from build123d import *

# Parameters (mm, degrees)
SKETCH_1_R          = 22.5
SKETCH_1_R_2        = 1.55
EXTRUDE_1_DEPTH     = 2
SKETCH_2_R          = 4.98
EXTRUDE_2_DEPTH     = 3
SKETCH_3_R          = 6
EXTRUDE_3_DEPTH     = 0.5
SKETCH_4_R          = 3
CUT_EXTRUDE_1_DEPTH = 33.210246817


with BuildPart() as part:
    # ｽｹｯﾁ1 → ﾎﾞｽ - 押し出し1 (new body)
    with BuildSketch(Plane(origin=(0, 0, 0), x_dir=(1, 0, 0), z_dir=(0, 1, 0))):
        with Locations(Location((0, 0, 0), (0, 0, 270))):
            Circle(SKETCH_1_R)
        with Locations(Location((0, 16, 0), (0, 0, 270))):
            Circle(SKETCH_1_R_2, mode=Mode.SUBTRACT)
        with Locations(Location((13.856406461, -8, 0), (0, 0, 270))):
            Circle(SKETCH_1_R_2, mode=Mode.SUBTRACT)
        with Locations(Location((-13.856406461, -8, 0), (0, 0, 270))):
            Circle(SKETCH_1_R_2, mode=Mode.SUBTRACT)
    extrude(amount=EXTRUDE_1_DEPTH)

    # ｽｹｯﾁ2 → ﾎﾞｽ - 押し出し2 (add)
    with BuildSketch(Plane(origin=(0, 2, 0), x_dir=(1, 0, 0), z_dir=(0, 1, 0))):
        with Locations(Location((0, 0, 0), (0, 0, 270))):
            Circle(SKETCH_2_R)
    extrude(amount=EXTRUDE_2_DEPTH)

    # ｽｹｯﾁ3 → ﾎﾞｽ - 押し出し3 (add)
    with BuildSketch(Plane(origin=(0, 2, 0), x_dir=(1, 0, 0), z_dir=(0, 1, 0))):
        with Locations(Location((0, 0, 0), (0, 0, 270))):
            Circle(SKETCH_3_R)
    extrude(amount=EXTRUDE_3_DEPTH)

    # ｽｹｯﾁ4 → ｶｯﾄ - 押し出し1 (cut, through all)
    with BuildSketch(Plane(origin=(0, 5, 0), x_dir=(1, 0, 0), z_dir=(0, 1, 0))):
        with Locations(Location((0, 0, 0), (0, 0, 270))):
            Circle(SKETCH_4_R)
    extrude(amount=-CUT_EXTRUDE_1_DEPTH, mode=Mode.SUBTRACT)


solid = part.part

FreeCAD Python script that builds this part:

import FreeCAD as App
import Part
import Sketcher

V = App.Vector
Q = App.Units.Quantity

doc = App.newDocument("Part")
params = doc.addObject("Spreadsheet::Sheet", "Params")
for row, (alias, value) in enumerate([
    ("sketch1_diameter", "45 mm"),
    ("sketch1_diameter2", "3.1 mm"),
    ("pad1_length", "2 mm"),
    ("sketch2_diameter", "9.96 mm"),
    ("pad2_length", "3 mm"),
    ("sketch3_diameter", "12 mm"),
    ("pad3_length", "0.5 mm"),
    ("sketch4_diameter", "6 mm"),
], start=1):
    params.set(f"A{row}", alias)
    params.set(f"B{row}", "=" + value)
    params.setAlias(f"B{row}", alias)

body = doc.addObject("PartDesign::Body", "Body")

sketch1 = body.newObject("Sketcher::SketchObject", "Sketch")
sketch1.AttachmentSupport = (doc.getObject("XZ_Plane"), [""])
sketch1.MapMode = "FlatFace"
sketch1.addGeometry([
    Part.Circle(V(0, 0, 0), V(0, 0, 1), 22.5),
    Part.Circle(V(0, -16, 0), V(0, 0, 1), 1.6),
    Part.Circle(V(-13.9, 8, 0), V(0, 0, 1), 1.6),
    Part.Circle(V(13.9, 8, 0), V(0, 0, 1), 1.6),
], False)
sketch1.addConstraint([
    Sketcher.Constraint("Coincident", 0, 3, -1, 1),
    Sketcher.Constraint("Equal", 1, 2),
    Sketcher.Constraint("Equal", 2, 3),
    Sketcher.Constraint("Symmetric", 2, 3, 3, 3, -2),
    Sketcher.Constraint("PointOnObject", 1, 3, -2),
    Sketcher.Constraint("Diameter", 0, Q("45 mm")),
    Sketcher.Constraint("Diameter", 1, Q("3.1 mm")),
    Sketcher.Constraint("DistanceY", 1, 3, -1, 1, Q("16 mm")),
    Sketcher.Constraint("DistanceY", -1, 1, 2, 3, Q("8 mm")),
    Sketcher.Constraint("DistanceX", 2, 3, -1, 1, Q("13.856406 mm")),
])
sketch1.setExpression("Constraints[5]", "Params.sketch1_diameter")
sketch1.setExpression("Constraints[6]", "Params.sketch1_diameter2")
pad1 = body.newObject("PartDesign::Pad", "Pad")
pad1.Profile = sketch1
pad1.setExpression("Length", "Params.pad1_length")
pad1.Reversed = True

sketch2 = body.newObject("Sketcher::SketchObject", "Sketch001")
sketch2.AttachmentSupport = (doc.getObject("XZ_Plane"), [""])
sketch2.MapMode = "FlatFace"
sketch2.AttachmentOffset = App.Placement(V(0, 0, -2), App.Rotation())
sketch2.addGeometry(Part.Circle(V(0, 0, 0), V(0, 0, 1), 5), False)
sketch2.addConstraint([
    Sketcher.Constraint("Coincident", 0, 3, -1, 1),
    Sketcher.Constraint("Diameter", 0, Q("9.96 mm")),
])
sketch2.setExpression("Constraints[1]", "Params.sketch2_diameter")
pad2 = body.newObject("PartDesign::Pad", "Pad001")
pad2.Profile = sketch2
pad2.setExpression("Length", "Params.pad2_length")
pad2.Reversed = True

sketch3 = body.newObject("Sketcher::SketchObject", "Sketch002")
sketch3.AttachmentSupport = (doc.getObject("XZ_Plane"), [""])
sketch3.MapMode = "FlatFace"
sketch3.AttachmentOffset = App.Placement(V(0, 0, -2), App.Rotation())
sketch3.addGeometry(Part.Circle(V(0, 0, 0), V(0, 0, 1), 6), False)
sketch3.addConstraint([
    Sketcher.Constraint("Coincident", 0, 3, -1, 1),
    Sketcher.Constraint("Diameter", 0, Q("12 mm")),
])
sketch3.setExpression("Constraints[1]", "Params.sketch3_diameter")
pad3 = body.newObject("PartDesign::Pad", "Pad002")
pad3.Profile = sketch3
pad3.setExpression("Length", "Params.pad3_length")
pad3.Reversed = True

sketch4 = body.newObject("Sketcher::SketchObject", "Sketch003")
sketch4.AttachmentSupport = (doc.getObject("XZ_Plane"), [""])
sketch4.MapMode = "FlatFace"
sketch4.AttachmentOffset = App.Placement(V(0, 0, -5), App.Rotation())
sketch4.addGeometry(Part.Circle(V(0, 0, 0), V(0, 0, 1), 3), False)
sketch4.addConstraint([
    Sketcher.Constraint("Coincident", 0, 3, -1, 1),
    Sketcher.Constraint("Diameter", 0, Q("6 mm")),
])
sketch4.setExpression("Constraints[1]", "Params.sketch4_diameter")
pocket1 = body.newObject("PartDesign::Pocket", "Pocket")
pocket1.Profile = sketch4
pocket1.Type = "ThroughAll"
pocket1.Reversed = True

doc.recompute()
